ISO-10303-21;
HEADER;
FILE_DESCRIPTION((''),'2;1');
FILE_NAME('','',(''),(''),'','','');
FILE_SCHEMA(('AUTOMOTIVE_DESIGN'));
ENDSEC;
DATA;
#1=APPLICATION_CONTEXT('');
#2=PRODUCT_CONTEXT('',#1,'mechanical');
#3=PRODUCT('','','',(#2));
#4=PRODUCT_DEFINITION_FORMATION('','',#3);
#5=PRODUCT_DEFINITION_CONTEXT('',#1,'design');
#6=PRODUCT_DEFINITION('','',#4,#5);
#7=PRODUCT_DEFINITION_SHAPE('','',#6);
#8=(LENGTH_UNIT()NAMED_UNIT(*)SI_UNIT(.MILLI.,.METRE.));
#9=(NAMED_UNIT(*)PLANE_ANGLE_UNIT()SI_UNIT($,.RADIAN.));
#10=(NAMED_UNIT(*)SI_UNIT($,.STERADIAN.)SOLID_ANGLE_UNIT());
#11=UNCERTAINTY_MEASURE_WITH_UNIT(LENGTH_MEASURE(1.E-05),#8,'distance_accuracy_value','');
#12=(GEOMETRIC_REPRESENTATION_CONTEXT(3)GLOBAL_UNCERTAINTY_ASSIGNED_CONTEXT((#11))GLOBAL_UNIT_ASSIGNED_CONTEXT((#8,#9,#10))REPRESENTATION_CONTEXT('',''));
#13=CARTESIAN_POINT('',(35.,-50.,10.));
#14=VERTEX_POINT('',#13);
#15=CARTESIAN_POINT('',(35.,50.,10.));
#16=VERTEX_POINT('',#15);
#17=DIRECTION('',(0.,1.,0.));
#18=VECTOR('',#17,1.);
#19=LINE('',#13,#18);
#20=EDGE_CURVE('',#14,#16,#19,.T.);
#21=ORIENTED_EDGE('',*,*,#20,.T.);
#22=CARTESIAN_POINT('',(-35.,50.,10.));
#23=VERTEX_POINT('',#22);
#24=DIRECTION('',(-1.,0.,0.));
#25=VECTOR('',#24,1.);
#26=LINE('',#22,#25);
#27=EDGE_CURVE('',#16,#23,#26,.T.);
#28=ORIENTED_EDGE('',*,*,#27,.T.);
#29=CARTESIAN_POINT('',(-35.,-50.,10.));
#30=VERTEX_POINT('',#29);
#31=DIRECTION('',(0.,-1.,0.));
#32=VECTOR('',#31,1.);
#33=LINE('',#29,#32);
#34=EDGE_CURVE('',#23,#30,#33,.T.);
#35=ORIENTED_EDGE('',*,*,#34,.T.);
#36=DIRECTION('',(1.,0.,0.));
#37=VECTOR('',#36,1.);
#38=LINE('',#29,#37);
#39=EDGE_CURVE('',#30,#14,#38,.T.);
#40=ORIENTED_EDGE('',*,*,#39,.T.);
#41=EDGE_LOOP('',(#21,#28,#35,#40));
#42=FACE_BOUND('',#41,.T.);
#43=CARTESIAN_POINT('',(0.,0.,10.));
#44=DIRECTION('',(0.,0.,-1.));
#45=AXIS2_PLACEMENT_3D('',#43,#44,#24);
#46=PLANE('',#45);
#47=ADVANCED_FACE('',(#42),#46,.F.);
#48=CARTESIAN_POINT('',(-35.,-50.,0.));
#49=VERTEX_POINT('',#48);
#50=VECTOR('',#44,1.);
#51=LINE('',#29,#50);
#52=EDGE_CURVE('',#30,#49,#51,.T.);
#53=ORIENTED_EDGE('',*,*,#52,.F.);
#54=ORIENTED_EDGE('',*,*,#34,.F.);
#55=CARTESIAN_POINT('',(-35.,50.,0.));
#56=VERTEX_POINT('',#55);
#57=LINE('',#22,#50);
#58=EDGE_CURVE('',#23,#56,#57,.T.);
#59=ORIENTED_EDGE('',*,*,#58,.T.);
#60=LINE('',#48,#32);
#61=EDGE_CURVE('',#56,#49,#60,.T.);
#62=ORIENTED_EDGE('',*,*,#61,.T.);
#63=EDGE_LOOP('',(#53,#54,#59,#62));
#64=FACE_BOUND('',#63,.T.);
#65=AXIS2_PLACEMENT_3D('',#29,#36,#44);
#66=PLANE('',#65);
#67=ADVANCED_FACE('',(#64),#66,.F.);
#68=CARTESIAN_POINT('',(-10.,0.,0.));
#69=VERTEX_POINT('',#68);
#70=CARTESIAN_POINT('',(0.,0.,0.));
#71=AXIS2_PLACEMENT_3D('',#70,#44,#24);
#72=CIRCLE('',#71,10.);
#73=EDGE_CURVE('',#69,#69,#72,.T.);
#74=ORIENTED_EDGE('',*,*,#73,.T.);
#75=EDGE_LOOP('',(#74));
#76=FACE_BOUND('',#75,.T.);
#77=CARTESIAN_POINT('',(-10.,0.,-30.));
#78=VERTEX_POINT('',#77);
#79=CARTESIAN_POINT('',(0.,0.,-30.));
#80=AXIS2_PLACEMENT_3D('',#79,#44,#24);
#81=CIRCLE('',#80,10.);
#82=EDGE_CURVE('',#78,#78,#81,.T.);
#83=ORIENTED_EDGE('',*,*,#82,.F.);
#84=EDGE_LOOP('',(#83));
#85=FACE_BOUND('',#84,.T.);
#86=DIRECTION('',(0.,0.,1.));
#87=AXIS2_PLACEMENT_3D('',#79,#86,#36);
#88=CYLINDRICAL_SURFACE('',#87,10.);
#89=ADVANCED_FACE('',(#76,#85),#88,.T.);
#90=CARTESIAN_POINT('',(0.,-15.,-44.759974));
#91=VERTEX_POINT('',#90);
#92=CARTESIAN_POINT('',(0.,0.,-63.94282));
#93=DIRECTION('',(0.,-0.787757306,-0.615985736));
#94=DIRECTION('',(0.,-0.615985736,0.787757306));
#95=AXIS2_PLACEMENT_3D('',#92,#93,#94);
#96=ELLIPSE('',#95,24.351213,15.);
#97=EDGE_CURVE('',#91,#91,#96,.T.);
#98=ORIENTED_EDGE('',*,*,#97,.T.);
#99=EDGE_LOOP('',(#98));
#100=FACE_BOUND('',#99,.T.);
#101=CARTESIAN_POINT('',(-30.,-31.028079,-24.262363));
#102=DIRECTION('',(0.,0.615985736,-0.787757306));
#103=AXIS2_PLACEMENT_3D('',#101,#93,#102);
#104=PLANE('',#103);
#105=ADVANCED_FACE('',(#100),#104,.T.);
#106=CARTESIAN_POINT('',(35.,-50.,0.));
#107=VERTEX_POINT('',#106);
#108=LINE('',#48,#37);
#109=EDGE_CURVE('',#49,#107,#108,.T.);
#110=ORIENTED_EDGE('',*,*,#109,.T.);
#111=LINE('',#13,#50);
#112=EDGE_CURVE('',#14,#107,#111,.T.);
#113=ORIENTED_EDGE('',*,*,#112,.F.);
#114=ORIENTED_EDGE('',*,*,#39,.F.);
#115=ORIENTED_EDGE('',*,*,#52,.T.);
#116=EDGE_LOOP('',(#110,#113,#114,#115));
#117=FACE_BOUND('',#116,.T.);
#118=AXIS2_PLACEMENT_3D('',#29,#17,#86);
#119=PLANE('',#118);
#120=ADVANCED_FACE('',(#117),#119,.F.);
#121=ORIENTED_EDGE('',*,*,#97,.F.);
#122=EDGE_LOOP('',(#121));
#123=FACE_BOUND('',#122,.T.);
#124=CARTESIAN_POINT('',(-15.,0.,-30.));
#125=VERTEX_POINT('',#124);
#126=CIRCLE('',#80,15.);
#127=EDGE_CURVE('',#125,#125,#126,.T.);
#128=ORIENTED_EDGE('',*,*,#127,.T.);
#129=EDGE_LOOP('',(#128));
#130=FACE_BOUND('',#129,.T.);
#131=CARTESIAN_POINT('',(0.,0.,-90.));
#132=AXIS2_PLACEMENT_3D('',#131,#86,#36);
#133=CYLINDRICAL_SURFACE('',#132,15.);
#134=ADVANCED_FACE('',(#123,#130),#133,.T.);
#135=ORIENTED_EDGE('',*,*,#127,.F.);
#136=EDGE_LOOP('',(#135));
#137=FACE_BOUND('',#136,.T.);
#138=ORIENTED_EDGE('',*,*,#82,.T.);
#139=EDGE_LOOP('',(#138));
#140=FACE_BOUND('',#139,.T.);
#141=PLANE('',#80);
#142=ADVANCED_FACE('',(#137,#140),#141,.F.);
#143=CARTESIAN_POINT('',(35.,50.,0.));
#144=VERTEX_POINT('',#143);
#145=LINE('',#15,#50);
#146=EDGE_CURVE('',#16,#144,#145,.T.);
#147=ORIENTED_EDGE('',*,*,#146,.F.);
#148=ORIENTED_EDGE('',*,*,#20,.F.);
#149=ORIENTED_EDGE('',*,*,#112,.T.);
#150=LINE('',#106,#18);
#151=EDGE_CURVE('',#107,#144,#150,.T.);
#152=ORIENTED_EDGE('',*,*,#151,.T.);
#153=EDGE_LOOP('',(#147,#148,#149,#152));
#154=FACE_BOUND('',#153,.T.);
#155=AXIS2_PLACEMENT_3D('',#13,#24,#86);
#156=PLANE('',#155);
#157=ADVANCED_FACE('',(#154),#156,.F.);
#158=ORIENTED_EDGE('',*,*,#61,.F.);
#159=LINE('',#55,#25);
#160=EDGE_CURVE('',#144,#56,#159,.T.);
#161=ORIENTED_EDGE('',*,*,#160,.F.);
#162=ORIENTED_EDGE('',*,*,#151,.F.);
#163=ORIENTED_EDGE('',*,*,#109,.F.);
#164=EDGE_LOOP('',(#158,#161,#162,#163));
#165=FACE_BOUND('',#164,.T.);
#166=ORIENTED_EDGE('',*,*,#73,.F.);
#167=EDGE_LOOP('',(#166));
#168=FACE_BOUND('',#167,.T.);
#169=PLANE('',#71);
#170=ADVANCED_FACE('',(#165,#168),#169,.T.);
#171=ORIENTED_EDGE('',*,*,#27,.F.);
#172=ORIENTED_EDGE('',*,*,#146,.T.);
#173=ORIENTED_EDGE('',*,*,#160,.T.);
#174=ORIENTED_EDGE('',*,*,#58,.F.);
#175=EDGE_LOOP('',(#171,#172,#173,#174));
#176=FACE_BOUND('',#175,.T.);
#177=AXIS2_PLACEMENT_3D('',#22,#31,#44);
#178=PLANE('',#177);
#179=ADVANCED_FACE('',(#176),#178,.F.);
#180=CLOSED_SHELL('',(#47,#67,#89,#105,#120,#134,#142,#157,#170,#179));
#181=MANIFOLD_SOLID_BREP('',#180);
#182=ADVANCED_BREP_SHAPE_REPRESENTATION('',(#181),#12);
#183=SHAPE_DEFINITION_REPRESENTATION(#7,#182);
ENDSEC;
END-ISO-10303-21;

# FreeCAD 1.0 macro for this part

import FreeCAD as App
import Part
import Sketcher
from FreeCAD import Vector


def add_polygon(sketch, points):
    """Adds a closed chain of lines whose ends are joined by coincident constraints."""
    first, n = sketch.GeometryCount, len(points)
    for a, b in zip(points, points[1:] + points[:1]):
        sketch.addGeometry(Part.LineSegment(App.Vector(*a, 0), App.Vector(*b, 0)), False)
    for i in range(n):
        sketch.addConstraint(Sketcher.Constraint("Coincident", first + i, 2, first + (i + 1) % n, 1))

doc = App.newDocument("Part")
body = doc.addObject("PartDesign::Body", "Body")

sketch1 = body.newObject("Sketcher::SketchObject", "Sketch")
sketch1.AttachmentSupport = (doc.getObject("XY_Plane"), [""])
sketch1.MapMode = "FlatFace"
add_polygon(sketch1, [(-35, 50), (-35, -50), (35, -50), (35, 50)])
sketch1.addConstraint(Sketcher.Constraint("Vertical", 0))
sketch1.addConstraint(Sketcher.Constraint("Horizontal", 1))
sketch1.addConstraint(Sketcher.Constraint("Vertical", 2))
sketch1.addConstraint(Sketcher.Constraint("Horizontal", 3))
sketch1.addConstraint(Sketcher.Constraint("Symmetric", 0, 2, 2, 2, -1, 1))
sketch1.addConstraint(Sketcher.Constraint("DistanceX", 1, 1, 1, 2, 70.0))
sketch1.addConstraint(Sketcher.Constraint("DistanceY", 0, 2, 0, 1, 100.0))
pad1 = body.newObject("PartDesign::Pad", "Pad")
pad1.Profile = sketch1
pad1.Length = 10

sketch2 = body.newObject("Sketcher::SketchObject", "Sketch001")
sketch2.AttachmentSupport = (doc.getObject("XY_Plane"), [""])
sketch2.MapMode = "FlatFace"
sketch2.addGeometry(Part.Circle(Vector(0, 0, 0), Vector(0, 0, 1), 10), False)
sketch2.addConstraint(Sketcher.Constraint("Coincident", 0, 3, -1, 1))
sketch2.addConstraint(Sketcher.Constraint("Diameter", 0, 20.0))
pad2 = body.newObject("PartDesign::Pad", "Pad001")
pad2.Profile = sketch2
pad2.Length = 30
pad2.Reversed = True

sketch3 = body.newObject("Sketcher::SketchObject", "Sketch002")
sketch3.AttachmentSupport = (doc.getObject("XY_Plane"), [""])
sketch3.MapMode = "FlatFace"
sketch3.AttachmentOffset = App.Placement(Vector(0, 0, -30), App.Rotation())
sketch3.addGeometry(Part.Circle(Vector(0, 0, 0), Vector(0, 0, 1), 15), False)
sketch3.addConstraint(Sketcher.Constraint("Coincident", 0, 3, -1, 1))
sketch3.addConstraint(Sketcher.Constraint("Diameter", 0, 30.0))
pad3 = body.newObject("PartDesign::Pad", "Pad002")
pad3.Profile = sketch3
pad3.Length = 60
pad3.Reversed = True

sketch4 = body.newObject("Sketcher::SketchObject", "Sketch003")
sketch4.AttachmentSupport = (doc.getObject("YZ_Plane"), [""])
sketch4.MapMode = "FlatFace"
add_polygon(sketch4, [(15, -83), (-15, -45), (-15, -90), (15, -90)])
sketch4.addConstraint(Sketcher.Constraint("Vertical", 1))
sketch4.addConstraint(Sketcher.Constraint("Horizontal", 2))
sketch4.addConstraint(Sketcher.Constraint("Vertical", 3))
sketch4.addConstraint(Sketcher.Constraint("DistanceX", 2, 1, 2, 2, 30.0))
sketch4.addConstraint(Sketcher.Constraint("DistanceX", 0, 2, -1, 1, 15.0))
sketch4.addConstraint(Sketcher.Constraint("DistanceY", 1, 2, -1, 1, 90.0))
sketch4.addConstraint(Sketcher.Constraint("DistanceY", 1, 2, 1, 1, 45.240026))
sketch4.addConstraint(Sketcher.Constraint("DistanceY", 3, 1, 3, 2, 6.874333))
pocket1 = body.newObject("PartDesign::Pocket", "Pocket")
pocket1.Profile = sketch4
pocket1.Length = 60
pocket1.Midplane = True

doc.recompute()
